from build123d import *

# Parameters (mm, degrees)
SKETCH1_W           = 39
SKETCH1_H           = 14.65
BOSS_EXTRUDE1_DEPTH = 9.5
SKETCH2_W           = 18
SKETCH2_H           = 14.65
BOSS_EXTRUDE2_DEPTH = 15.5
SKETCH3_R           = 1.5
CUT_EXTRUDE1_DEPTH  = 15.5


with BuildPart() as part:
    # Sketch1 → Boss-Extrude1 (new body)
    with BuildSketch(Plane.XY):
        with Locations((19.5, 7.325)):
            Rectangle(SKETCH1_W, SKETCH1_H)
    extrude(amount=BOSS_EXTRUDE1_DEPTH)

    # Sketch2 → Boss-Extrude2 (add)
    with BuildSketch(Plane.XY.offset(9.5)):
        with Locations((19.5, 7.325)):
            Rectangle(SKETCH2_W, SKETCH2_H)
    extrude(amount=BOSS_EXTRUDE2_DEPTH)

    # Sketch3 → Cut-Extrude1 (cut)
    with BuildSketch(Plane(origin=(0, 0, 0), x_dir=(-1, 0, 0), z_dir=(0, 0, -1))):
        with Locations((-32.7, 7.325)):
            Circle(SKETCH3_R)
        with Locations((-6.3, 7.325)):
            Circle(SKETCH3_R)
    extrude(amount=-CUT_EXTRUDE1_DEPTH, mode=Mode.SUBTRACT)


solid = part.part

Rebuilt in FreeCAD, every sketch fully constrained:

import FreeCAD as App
import Part
import Sketcher

V = App.Vector


def add_polygon(sketch, points):
    """Adds a closed chain of lines whose ends are joined by coincident constraints."""
    first, n = sketch.GeometryCount, len(points)
    for a, b in zip(points, points[1:] + points[:1]):
        sketch.addGeometry(Part.LineSegment(App.Vector(*a, 0), App.Vector(*b, 0)), False)
    for i in range(n):
        sketch.addConstraint(Sketcher.Constraint("Coincident", first + i, 2, first + (i + 1) % n, 1))

doc = App.newDocument("Part")
body = doc.addObject("PartDesign::Body", "Body")

sketch1 = doc.addObject("Sketcher::SketchObject", "Sketch")
body.addObject(sketch1)
sketch1.AttachmentSupport = (doc.XY_Plane, [""])
sketch1.MapMode = "FlatFace"
add_polygon(sketch1, [(0, 14.65), (0, 0), (39, 0), (39, 14.65)])
sketch1.addConstraint([
    Sketcher.Constraint("Vertical", 0),
    Sketcher.Constraint("Horizontal", 1),
    Sketcher.Constraint("Vertical", 2),
    Sketcher.Constraint("Horizontal", 3),
    Sketcher.Constraint("Coincident", 0, 2, -1, 1),
    Sketcher.Constraint("DistanceX", 1, 1, 1, 2, 39.0),
    Sketcher.Constraint("DistanceY", 0, 2, 0, 1, 14.65),
])
pad1 = doc.addObject("PartDesign::Pad", "Pad")
body.addObject(pad1)
pad1.Profile = sketch1
pad1.Length = 9.5

sketch2 = doc.addObject("Sketcher::SketchObject", "Sketch001")
body.addObject(sketch2)
sketch2.AttachmentSupport = (doc.XY_Plane, [""])
sketch2.MapMode = "FlatFace"
sketch2.AttachmentOffset = App.Placement(V(0, 0, 9.5), App.Rotation())
add_polygon(sketch2, [(10.5, 14.65), (10.5, 0), (28.5, 0), (28.5, 14.65)])
sketch2.addConstraint([
    Sketcher.Constraint("Vertical", 0),
    Sketcher.Constraint("Horizontal", 1),
    Sketcher.Constraint("Vertical", 2),
    Sketcher.Constraint("Horizontal", 3),
    Sketcher.Constraint("PointOnObject", 0, 2, -1),
    Sketcher.Constraint("DistanceX", 1, 1, 1, 2, 18.0),
    Sketcher.Constraint("DistanceY", 0, 2, 0, 1, 14.65),
    Sketcher.Constraint("DistanceX", -1, 1, 0, 2, 10.5),
])
pad2 = doc.addObject("PartDesign::Pad", "Pad001")
body.addObject(pad2)
pad2.Profile = sketch2
pad2.Length = 15.5

sketch3 = doc.addObject("Sketcher::SketchObject", "Sketch002")
body.addObject(sketch3)
sketch3.AttachmentSupport = (doc.XY_Plane, [""])
sketch3.MapMode = "FlatFace"
sketch3.addGeometry([
    Part.Circle(V(32.7, 7.325, 0), V(0, 0, 1), 1.5),
    Part.Circle(V(6.3, 7.325, 0), V(0, 0, 1), 1.5),
], False)
sketch3.addConstraint([
    Sketcher.Constraint("Equal", 0, 1),
    Sketcher.Constraint("Horizontal", 0, 3, 1, 3),
    Sketcher.Constraint("Diameter", 0, 3.0),
    Sketcher.Constraint("DistanceX", -1, 1, 0, 3, 32.7),
    Sketcher.Constraint("DistanceX", -1, 1, 1, 3, 6.3),
    Sketcher.Constraint("DistanceY", -1, 1, 0, 3, 7.325),
])
pocket1 = doc.addObject("PartDesign::Pocket", "Pocket")
body.addObject(pocket1)
pocket1.Profile = sketch3
pocket1.Length = 15.5
pocket1.Reversed = True

doc.recompute()
